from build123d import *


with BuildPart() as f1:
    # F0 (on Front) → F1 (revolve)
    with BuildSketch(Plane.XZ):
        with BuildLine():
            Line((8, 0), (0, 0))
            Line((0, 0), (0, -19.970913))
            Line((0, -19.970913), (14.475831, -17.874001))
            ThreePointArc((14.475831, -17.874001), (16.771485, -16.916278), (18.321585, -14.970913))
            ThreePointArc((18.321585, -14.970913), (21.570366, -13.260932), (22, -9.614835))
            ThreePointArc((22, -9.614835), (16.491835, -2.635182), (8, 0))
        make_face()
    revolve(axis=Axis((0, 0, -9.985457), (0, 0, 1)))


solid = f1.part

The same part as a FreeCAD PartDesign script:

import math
import FreeCAD as App
import Part
import Sketcher
from FreeCAD import Vector
Q = App.Units.Quantity

doc = App.newDocument("Part")
body = doc.addObject("PartDesign::Body", "Body")

# Sketch on XZ plane
sketch1 = body.newObject("Sketcher::SketchObject", "Sketch")
sketch1.AttachmentSupport = (doc.getObject("XZ_Plane"), [""])
sketch1.MapMode = "FlatFace"
sketch1.addGeometry(Part.LineSegment(Vector(8, 0, 0), Vector(0, 0, 0)), False)
sketch1.addGeometry(Part.LineSegment(Vector(0, 0, 0), Vector(0, -20, 0)), False)
sketch1.addGeometry(Part.LineSegment(Vector(0, -20, 0), Vector(14.5, -17.9, 0)), False)
sketch1.addGeometry(Part.ArcOfCircle(Part.Circle(Vector(13.8, -12.9, 0), Vector(0, 0, 1), 5), math.radians(-82), math.radians(-24)), False)
sketch1.addGeometry(Part.ArcOfCircle(Part.Circle(Vector(18.3, -11, 0), Vector(0, 0, 1), 3.9), math.radians(-90), math.radians(21)), False)
sketch1.addGeometry(Part.ArcOfCircle(Part.Circle(Vector(8, -15, 0), Vector(0, 0, 1), 15), math.radians(21), math.radians(90)), False)
sketch1.addConstraint(Sketcher.Constraint("Coincident", 0, 2, 1, 1))
sketch1.addConstraint(Sketcher.Constraint("Coincident", 1, 2, 2, 1))
sketch1.addConstraint(Sketcher.Constraint("Tangent", 2, 2, 3, 1))
sketch1.addConstraint(Sketcher.Constraint("Coincident", 3, 2, 4, 1))
sketch1.addConstraint(Sketcher.Constraint("Tangent", 4, 2, 5, 1))
sketch1.addConstraint(Sketcher.Constraint("Tangent", 5, 2, 0, 1))
sketch1.addConstraint(Sketcher.Constraint("Horizontal", 0))
sketch1.addConstraint(Sketcher.Constraint("Vertical", 1))
sketch1.addConstraint(Sketcher.Constraint("Coincident", 0, 2, -1, 1))
sketch1.addConstraint(Sketcher.Constraint("Vertical", 4, 3, 3, 2))
sketch1.addConstraint(Sketcher.Constraint("Radius", 3, Q("4.999998 mm")))
sketch1.addConstraint(Sketcher.Constraint("DistanceX", 0, 2, 0, 1, Q("8 mm")))
sketch1.addConstraint(Sketcher.Constraint("DistanceX", -1, 1, 4, 2, Q("22 mm")))
sketch1.addConstraint(Sketcher.Constraint("DistanceY", 1, 2, 3, 2, Q("5 mm")))
sketch1.addConstraint(Sketcher.Constraint("Radius", 4, Q("3.941159 mm")))
sketch1.addConstraint(Sketcher.Constraint("DistanceY", 2, 2, -1, 1, Q("17.874001 mm")))
sketch1.addConstraint(Sketcher.Constraint("Radius", 5, Q("15.000002 mm")))
revolution = body.newObject("PartDesign::Revolution", "Revolution")
revolution.Profile = sketch1
revolution.ReferenceAxis = (sketch1, ["V_Axis"])
revolution.Angle = 360

doc.recompute()
